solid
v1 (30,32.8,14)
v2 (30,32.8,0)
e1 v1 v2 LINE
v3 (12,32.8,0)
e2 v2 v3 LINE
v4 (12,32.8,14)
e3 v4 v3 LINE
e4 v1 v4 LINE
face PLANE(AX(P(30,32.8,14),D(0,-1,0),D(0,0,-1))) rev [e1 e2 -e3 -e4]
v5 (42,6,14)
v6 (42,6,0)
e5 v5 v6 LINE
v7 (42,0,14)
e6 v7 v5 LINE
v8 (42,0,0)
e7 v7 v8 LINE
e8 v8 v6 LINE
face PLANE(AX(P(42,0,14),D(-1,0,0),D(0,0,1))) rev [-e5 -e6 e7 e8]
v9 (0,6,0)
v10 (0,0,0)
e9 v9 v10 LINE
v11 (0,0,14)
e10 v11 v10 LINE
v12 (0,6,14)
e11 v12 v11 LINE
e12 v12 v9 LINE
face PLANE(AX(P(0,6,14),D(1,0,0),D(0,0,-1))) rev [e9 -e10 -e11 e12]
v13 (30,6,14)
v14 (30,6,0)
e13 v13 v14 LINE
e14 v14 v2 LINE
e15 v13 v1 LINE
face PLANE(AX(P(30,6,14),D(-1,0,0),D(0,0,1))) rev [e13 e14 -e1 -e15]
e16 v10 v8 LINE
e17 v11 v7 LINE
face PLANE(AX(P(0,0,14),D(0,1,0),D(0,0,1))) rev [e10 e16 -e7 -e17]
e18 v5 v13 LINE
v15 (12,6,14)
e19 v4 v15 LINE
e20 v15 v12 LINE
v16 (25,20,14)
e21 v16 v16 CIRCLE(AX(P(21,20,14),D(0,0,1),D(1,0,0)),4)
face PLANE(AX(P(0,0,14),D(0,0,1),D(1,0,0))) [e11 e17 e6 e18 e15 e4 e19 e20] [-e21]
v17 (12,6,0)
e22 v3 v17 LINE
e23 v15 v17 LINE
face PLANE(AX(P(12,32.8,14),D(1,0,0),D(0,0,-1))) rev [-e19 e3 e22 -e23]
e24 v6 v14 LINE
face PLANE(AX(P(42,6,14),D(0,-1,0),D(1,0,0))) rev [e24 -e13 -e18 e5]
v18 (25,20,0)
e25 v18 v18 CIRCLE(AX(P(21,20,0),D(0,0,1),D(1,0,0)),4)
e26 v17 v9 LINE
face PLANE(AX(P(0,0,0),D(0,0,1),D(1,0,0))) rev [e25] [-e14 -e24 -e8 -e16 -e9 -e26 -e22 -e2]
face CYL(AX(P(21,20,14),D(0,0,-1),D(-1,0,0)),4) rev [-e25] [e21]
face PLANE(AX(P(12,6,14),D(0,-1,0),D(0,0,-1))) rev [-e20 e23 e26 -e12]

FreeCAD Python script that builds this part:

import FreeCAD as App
import Part
import Sketcher

doc = App.newDocument("Part")
body = doc.addObject("PartDesign::Body", "Body")

sketch1 = body.newObject("Sketcher::SketchObject", "Sketch")
sketch1.AttachmentSupport = (doc.getObject("XY_Plane"), [""])
sketch1.MapMode = "FlatFace"
sketch1.addGeometry([
    Part.LineSegment(App.Vector(0, 0, 0), App.Vector(42, 0, 0)),
    Part.LineSegment(App.Vector(42, 0, 0), App.Vector(42, 6, 0)),
    Part.LineSegment(App.Vector(42, 6, 0), App.Vector(30, 6, 0)),
    Part.LineSegment(App.Vector(30, 6, 0), App.Vector(30, 32.8, 0)),
    Part.LineSegment(App.Vector(30, 32.8, 0), App.Vector(12, 32.8, 0)),
    Part.LineSegment(App.Vector(12, 32.8, 0), App.Vector(12, 6, 0)),
    Part.LineSegment(App.Vector(12, 6, 0), App.Vector(0, 6, 0)),
    Part.LineSegment(App.Vector(0, 6, 0), App.Vector(0, 0, 0)),
    Part.Circle(App.Vector(21, 20, 0), App.Vector(0, 0, 1), 4),
], False)
sketch1.addConstraint([
    Sketcher.Constraint("Coincident", 0, 2, 1, 1),
    Sketcher.Constraint("Coincident", 1, 2, 2, 1),
    Sketcher.Constraint("Coincident", 2, 2, 3, 1),
    Sketcher.Constraint("Coincident", 3, 2, 4, 1),
    Sketcher.Constraint("Coincident", 4, 2, 5, 1),
    Sketcher.Constraint("Coincident", 5, 2, 6, 1),
    Sketcher.Constraint("Coincident", 6, 2, 7, 1),
    Sketcher.Constraint("Coincident", 7, 2, 0, 1),
    Sketcher.Constraint("Horizontal", 0),
    Sketcher.Constraint("Vertical", 1),
    Sketcher.Constraint("Horizontal", 2),
    Sketcher.Constraint("Vertical", 3),
    Sketcher.Constraint("Horizontal", 4),
    Sketcher.Constraint("Vertical", 5),
    Sketcher.Constraint("Horizontal", 6),
    Sketcher.Constraint("Vertical", 7),
    Sketcher.Constraint("Coincident", 7, 2, -1, 1),
    Sketcher.Constraint("Horizontal", 2, 2, 5, 2),
    Sketcher.Constraint("Equal", 2, 6),
    Sketcher.Constraint("Diameter", 8, 8.0),
    Sketcher.Constraint("DistanceX", 0, 1, 0, 2, 42.0),
    Sketcher.Constraint("DistanceX", 2, 2, 2, 1, 12.0),
    Sketcher.Constraint("DistanceY", 1, 1, 1, 2, 6.0),
    Sketcher.Constraint("DistanceY", 3, 1, 3, 2, 26.8),
    Sketcher.Constraint("DistanceX", -1, 1, 8, 3, 21.0),
    Sketcher.Constraint("DistanceY", -1, 1, 8, 3, 20.0),
])
pad1 = body.newObject("PartDesign::Pad", "Pad")
pad1.Profile = sketch1
pad1.Length = 14

doc.recompute()
